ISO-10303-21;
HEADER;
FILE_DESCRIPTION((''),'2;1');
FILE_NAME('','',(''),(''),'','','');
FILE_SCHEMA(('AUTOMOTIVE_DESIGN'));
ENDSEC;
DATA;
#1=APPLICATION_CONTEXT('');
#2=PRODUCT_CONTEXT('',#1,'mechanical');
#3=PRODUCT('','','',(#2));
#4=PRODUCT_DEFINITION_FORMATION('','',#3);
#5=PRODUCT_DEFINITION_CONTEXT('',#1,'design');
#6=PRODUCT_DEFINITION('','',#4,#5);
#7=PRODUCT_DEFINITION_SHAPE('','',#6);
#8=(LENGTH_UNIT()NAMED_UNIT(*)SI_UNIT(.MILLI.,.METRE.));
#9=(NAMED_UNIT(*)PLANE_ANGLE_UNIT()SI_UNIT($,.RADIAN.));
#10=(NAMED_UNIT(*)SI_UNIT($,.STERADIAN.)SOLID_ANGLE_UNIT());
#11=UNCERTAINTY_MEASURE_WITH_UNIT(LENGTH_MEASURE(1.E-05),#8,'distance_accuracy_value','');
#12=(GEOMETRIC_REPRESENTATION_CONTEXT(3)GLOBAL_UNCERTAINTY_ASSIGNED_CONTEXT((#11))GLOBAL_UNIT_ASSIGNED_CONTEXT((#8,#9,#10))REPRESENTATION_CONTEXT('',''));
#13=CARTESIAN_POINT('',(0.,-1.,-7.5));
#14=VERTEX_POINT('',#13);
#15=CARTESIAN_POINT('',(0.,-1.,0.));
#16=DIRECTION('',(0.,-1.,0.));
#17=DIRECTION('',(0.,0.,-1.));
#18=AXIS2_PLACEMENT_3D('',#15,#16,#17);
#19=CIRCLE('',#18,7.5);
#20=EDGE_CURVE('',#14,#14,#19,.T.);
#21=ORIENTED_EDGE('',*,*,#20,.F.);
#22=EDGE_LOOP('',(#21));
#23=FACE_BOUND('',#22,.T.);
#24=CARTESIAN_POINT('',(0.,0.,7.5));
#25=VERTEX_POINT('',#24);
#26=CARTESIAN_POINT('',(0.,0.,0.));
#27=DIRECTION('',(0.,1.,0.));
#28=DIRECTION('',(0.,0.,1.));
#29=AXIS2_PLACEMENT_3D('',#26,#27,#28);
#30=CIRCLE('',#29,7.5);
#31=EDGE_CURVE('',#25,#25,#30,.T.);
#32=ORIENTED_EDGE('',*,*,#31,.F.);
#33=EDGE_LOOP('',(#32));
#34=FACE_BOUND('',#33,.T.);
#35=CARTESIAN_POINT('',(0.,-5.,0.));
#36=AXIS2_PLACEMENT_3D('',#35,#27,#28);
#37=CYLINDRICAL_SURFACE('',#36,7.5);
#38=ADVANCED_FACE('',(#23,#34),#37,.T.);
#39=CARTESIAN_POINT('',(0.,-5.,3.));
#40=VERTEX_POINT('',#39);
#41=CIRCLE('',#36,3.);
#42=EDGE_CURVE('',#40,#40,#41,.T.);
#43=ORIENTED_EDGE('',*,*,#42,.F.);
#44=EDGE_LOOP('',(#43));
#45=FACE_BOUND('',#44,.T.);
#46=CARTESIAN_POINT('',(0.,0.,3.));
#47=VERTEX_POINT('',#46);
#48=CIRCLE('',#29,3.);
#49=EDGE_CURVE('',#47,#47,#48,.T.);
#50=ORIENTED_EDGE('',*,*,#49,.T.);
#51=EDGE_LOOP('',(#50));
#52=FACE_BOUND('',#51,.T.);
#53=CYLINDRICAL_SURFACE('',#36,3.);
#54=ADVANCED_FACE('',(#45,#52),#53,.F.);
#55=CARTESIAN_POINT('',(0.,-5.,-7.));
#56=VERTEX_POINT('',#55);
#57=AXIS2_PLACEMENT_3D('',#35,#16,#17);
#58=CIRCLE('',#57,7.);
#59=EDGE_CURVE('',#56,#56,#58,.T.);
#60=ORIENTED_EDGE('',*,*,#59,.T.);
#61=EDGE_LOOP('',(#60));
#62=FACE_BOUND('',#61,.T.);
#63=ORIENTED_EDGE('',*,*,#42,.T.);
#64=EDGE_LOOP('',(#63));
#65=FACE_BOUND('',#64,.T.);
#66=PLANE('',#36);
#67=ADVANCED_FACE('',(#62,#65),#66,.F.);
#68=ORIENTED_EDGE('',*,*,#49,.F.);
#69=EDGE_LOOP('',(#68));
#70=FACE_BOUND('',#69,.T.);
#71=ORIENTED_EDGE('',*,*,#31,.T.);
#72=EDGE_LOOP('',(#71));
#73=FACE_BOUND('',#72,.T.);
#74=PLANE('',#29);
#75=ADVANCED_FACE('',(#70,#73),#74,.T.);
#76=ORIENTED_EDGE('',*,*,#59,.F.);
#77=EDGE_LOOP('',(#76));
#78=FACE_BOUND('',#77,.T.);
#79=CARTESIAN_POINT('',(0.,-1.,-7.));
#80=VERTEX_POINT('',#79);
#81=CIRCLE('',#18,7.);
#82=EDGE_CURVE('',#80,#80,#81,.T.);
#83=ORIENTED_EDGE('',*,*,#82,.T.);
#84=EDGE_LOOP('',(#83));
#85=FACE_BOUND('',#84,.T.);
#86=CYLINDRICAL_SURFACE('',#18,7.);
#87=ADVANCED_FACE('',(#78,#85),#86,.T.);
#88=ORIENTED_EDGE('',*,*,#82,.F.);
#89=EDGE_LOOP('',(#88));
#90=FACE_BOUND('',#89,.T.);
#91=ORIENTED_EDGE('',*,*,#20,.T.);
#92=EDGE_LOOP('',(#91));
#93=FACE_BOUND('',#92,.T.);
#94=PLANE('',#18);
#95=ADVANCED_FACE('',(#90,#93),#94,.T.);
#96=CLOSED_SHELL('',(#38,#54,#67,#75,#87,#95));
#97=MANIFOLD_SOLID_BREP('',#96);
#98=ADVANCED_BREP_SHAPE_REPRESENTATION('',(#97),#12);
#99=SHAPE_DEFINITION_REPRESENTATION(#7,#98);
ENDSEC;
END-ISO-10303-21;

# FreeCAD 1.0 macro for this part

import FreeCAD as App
import Part
import Sketcher
from FreeCAD import Vector

doc = App.newDocument("Part")
body = doc.addObject("PartDesign::Body", "Body")

sketch1 = body.newObject("Sketcher::SketchObject", "Sketch")
sketch1.AttachmentSupport = (doc.getObject("XZ_Plane"), [""])
sketch1.MapMode = "FlatFace"
sketch1.addGeometry([
    Part.Circle(Vector(0, 0, 0), Vector(0, 0, 1), 7.5),
    Part.Circle(Vector(0, 0, 0), Vector(0, 0, 1), 3),
], False)
sketch1.addConstraint([
    Sketcher.Constraint("Coincident", 0, 3, -1, 1),
    Sketcher.Constraint("Coincident", 1, 3, -1, 1),
    Sketcher.Constraint("Diameter", 0, 15.0),
    Sketcher.Constraint("Diameter", 1, 6.0),
])
pad1 = body.newObject("PartDesign::Pad", "Pad")
pad1.Profile = sketch1
pad1.Length = 5

sketch2 = body.newObject("Sketcher::SketchObject", "Sketch001")
sketch2.AttachmentSupport = (doc.getObject("XZ_Plane"), [""])
sketch2.MapMode = "FlatFace"
sketch2.AttachmentOffset = App.Placement(Vector(0, 0, 5), App.Rotation())
sketch2.addGeometry([
    Part.Circle(Vector(0, 0, 0), Vector(0, 0, 1), 8),
    Part.Circle(Vector(0, 0, 0), Vector(0, 0, 1), 7),
], False)
sketch2.addConstraint([
    Sketcher.Constraint("Coincident", 0, 3, -1, 1),
    Sketcher.Constraint("Coincident", 1, 3, -1, 1),
    Sketcher.Constraint("Diameter", 0, 15.0),
    Sketcher.Constraint("Diameter", 1, 14.0),
])
pocket1 = body.newObject("PartDesign::Pocket", "Pocket")
pocket1.Profile = sketch2
pocket1.Length = 4

doc.recompute()
